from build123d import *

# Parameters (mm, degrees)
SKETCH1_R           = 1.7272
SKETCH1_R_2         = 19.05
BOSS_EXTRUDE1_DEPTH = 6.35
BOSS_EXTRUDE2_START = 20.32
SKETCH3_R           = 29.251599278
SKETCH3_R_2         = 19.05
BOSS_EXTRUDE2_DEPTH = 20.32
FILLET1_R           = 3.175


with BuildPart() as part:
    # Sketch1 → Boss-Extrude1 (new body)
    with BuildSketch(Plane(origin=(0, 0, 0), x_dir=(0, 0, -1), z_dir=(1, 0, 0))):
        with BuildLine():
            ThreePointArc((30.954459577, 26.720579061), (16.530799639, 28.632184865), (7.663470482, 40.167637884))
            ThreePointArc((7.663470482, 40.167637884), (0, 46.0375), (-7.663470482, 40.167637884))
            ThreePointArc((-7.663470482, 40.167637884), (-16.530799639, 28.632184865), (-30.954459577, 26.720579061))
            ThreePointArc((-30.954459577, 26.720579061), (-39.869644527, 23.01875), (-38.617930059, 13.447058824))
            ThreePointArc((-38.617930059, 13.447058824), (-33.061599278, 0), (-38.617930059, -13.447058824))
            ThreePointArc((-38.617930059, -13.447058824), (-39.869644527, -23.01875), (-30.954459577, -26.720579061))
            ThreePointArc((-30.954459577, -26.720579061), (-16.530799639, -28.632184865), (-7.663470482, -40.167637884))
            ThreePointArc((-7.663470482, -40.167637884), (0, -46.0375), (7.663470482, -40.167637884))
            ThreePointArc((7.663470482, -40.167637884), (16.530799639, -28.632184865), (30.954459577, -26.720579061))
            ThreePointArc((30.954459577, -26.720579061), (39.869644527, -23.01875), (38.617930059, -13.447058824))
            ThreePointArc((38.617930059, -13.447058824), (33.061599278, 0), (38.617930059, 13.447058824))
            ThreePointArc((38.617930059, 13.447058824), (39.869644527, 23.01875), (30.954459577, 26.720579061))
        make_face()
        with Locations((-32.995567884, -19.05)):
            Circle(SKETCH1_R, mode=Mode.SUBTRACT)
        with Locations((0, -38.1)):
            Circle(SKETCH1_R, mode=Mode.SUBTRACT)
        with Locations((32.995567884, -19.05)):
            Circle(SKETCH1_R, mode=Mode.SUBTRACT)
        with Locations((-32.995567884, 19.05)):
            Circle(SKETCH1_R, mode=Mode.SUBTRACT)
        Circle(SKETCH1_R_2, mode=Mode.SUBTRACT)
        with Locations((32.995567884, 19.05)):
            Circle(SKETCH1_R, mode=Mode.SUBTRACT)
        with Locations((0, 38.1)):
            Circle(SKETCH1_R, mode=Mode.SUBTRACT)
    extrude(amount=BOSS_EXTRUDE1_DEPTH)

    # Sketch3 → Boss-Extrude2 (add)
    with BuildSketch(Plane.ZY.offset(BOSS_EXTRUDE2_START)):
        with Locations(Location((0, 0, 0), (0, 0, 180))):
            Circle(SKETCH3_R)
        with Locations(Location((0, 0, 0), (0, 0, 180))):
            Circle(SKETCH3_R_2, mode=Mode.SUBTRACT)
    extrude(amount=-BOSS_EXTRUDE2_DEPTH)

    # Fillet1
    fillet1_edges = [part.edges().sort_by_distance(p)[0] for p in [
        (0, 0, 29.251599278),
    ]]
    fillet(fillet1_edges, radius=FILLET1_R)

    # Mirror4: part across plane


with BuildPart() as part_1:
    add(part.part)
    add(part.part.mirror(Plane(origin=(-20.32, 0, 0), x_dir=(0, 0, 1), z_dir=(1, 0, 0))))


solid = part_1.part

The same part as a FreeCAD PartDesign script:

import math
import FreeCAD as App
import Part
import Sketcher

V = App.Vector
Q = App.Units.Quantity


def edges_at(feature, points):
    """Names of the edges that pass closest to the given points."""
    edges = feature.Shape.Edges
    near = lambda p: min(range(len(edges)), key=lambda i: edges[i].distToShape(Part.Vertex(*p))[0])
    return sorted({f"Edge{near(p) + 1}" for p in points})

doc = App.newDocument("Part")
body = doc.addObject("PartDesign::Body", "Body")

# Sketch on YZ plane
sketch1 = body.newObject("Sketcher::SketchObject", "Sketch")
sketch1.AttachmentSupport = (doc.getObject("YZ_Plane"), [""])
sketch1.MapMode = "FlatFace"
sketch1.addGeometry([
    Part.ArcOfCircle(Part.Circle(V(45.1, -26.1, 0), V(0, 0, 1), 19.1), math.radians(105), math.radians(195)),  # 0
    Part.ArcOfCircle(Part.Circle(V(38.1, 0, 0), V(0, 0, 1), 7.9), math.radians(-75), math.radians(75)),  # 1
    Part.ArcOfCircle(Part.Circle(V(45.1, 26.1, 0), V(0, 0, 1), 19.1), math.radians(165), math.radians(255)),  # 2
    Part.ArcOfCircle(Part.Circle(V(19.1, 33, 0), V(0, 0, 1), 7.9), math.radians(-15), math.radians(135)),  # 3
    Part.ArcOfCircle(Part.Circle(V(0, 52.1, 0), V(0, 0, 1), 19.1), math.radians(-135), math.radians(-45)),  # 4
    Part.ArcOfCircle(Part.Circle(V(-19.1, 33, 0), V(0, 0, 1), 7.9), math.radians(45), math.radians(195)),  # 5
    Part.ArcOfCircle(Part.Circle(V(-45.1, 26.1, 0), V(0, 0, 1), 19.1), math.radians(-75), math.radians(15)),  # 6
    Part.ArcOfCircle(Part.Circle(V(-38.1, 0, 0), V(0, 0, 1), 7.9), math.radians(105), math.radians(255)),  # 7
    Part.ArcOfCircle(Part.Circle(V(-45.1, -26.1, 0), V(0, 0, 1), 19.1), math.radians(-15), math.radians(75)),  # 8
    Part.ArcOfCircle(Part.Circle(V(-19.1, -33, 0), V(0, 0, 1), 7.9), math.radians(165), math.radians(315)),  # 9
    Part.ArcOfCircle(Part.Circle(V(0, -52.1, 0), V(0, 0, 1), 19.1), math.radians(45), math.radians(135)),  # 10
    Part.ArcOfCircle(Part.Circle(V(19.1, -33, 0), V(0, 0, 1), 7.9), math.radians(-135), math.radians(15)),  # 11
    Part.Circle(V(-19.1, 33, 0), V(0, 0, 1), 1.7),  # 12
    Part.Circle(V(-38.1, 0, 0), V(0, 0, 1), 1.7),  # 13
    Part.Circle(V(-19.1, -33, 0), V(0, 0, 1), 1.7),  # 14
    Part.Circle(V(19.1, 33, 0), V(0, 0, 1), 1.7),  # 15
    Part.Circle(V(0, 0, 0), V(0, 0, 1), 19.1),  # 16
    Part.Circle(V(19.1, -33, 0), V(0, 0, 1), 1.7),  # 17
    Part.Circle(V(38.1, 0, 0), V(0, 0, 1), 1.7),  # 18
], False)
sketch1.addConstraint([
    Sketcher.Constraint("Tangent", 0, 1, 1, 1),
    Sketcher.Constraint("Tangent", 1, 2, 2, 2),
    Sketcher.Constraint("Tangent", 2, 1, 3, 1),
    Sketcher.Constraint("Tangent", 3, 2, 4, 2),
    Sketcher.Constraint("Tangent", 4, 1, 5, 1),
    Sketcher.Constraint("Tangent", 5, 2, 6, 2),
    Sketcher.Constraint("Tangent", 6, 1, 7, 1),
    Sketcher.Constraint("Tangent", 7, 2, 8, 2),
    Sketcher.Constraint("Tangent", 8, 1, 9, 1),
    Sketcher.Constraint("Tangent", 9, 2, 10, 2),
    Sketcher.Constraint("Tangent", 10, 1, 11, 1),
    Sketcher.Constraint("Tangent", 11, 2, 0, 2),
    Sketcher.Constraint("Coincident", 16, 3, -1, 1),
    Sketcher.Constraint("Coincident", 12, 3, 5, 3),
    Sketcher.Constraint("Coincident", 13, 3, 7, 3),
    Sketcher.Constraint("Coincident", 14, 3, 9, 3),
    Sketcher.Constraint("Coincident", 15, 3, 3, 3),
    Sketcher.Constraint("Coincident", 17, 3, 11, 3),
    Sketcher.Constraint("Coincident", 18, 3, 1, 3),
    Sketcher.Constraint("Equal", 0, 2),
    Sketcher.Constraint("Equal", 1, 3),
    Sketcher.Constraint("Equal", 2, 4),
    Sketcher.Constraint("Equal", 3, 5),
    Sketcher.Constraint("Equal", 4, 6),
    Sketcher.Constraint("Equal", 5, 7),
    Sketcher.Constraint("Equal", 6, 8),
    Sketcher.Constraint("Equal", 7, 9),
    Sketcher.Constraint("Equal", 8, 10),
    Sketcher.Constraint("Equal", 9, 11),
    Sketcher.Constraint("Equal", 12, 13),
    Sketcher.Constraint("Equal", 13, 14),
    Sketcher.Constraint("Equal", 14, 15),
    Sketcher.Constraint("Equal", 10, 16),
    Sketcher.Constraint("Equal", 15, 17),
    Sketcher.Constraint("Equal", 17, 18),
    Sketcher.Constraint("Symmetric", 0, 3, 6, 3, -1, 1),
    Sketcher.Constraint("Symmetric", 2, 3, 8, 3, -1, 1),
    Sketcher.Constraint("Symmetric", 4, 3, 10, 3, -1, 1),
    Sketcher.Constraint("Symmetric", 3, 3, 5, 3, -2),
    Sketcher.Constraint("PointOnObject", 1, 3, -1),
    Sketcher.Constraint("Diameter", 16, Q("1.5 in")),
    Sketcher.Constraint("Diameter", 12, Q("0.136 in")),
    Sketcher.Constraint("Radius", 1, Q("0.3125 in")),
    Sketcher.Constraint("DistanceX", 7, 3, 1, 3, Q("3 in")),
    Sketcher.Constraint("DistanceX", 5, 3, 3, 3, Q("1.5 in")),
    Sketcher.Constraint("DistanceY", 0, 3, -1, 1, 26.0558),
])
pad1 = body.newObject("PartDesign::Pad", "Pad")
pad1.Profile = sketch1
pad1.Length = Q("0.25 in")

# Sketch on YZ plane
sketch2 = body.newObject("Sketcher::SketchObject", "Sketch001")
sketch2.AttachmentSupport = (doc.getObject("YZ_Plane"), [""])
sketch2.MapMode = "FlatFace"
sketch2.AttachmentOffset = App.Placement(V(0, 0, -0.8 * 25.4), App.Rotation())
sketch2.addGeometry([
    Part.Circle(V(0, 0, 0), V(0, 0, 1), 29),
    Part.Circle(V(0, 0, 0), V(0, 0, 1), 19),
], False)
sketch2.addConstraint([
    Sketcher.Constraint("Coincident", 0, 3, -1, 1),
    Sketcher.Constraint("Coincident", 1, 3, -1, 1),
    Sketcher.Constraint("Diameter", 1, Q("1.5 in")),
    Sketcher.Constraint("Diameter", 0, 58.503199),
])
pad2 = body.newObject("PartDesign::Pad", "Pad001")
pad2.Profile = sketch2
pad2.Length = Q("0.8 in")
doc.recompute()

fillet = body.newObject("PartDesign::Fillet", "Fillet")
fillet.Base = (pad2, edges_at(pad2, [(0, 0, 29.252)]))
fillet.Radius = Q("0.125 in")
body2 = doc.addObject("PartDesign::Body", "Body001")
doc.recompute()

body2.BaseFeature = body
doc.recompute()

mirroring = doc.addObject("Part::Mirroring", "Mirroring")
mirroring.Source = body
mirroring.Base = V(-20.32, 0, 0)
mirroring.Normal = V(1, 0, 0)
body3 = doc.addObject("PartDesign::Body", "Body002")
body3.BaseFeature = mirroring
boolean = body2.newObject("PartDesign::Boolean", "Boolean")
boolean.Type = "Fuse"
boolean.addObjects([body3])
doc.recompute()
mirroring.Visibility = False

doc.recompute()
